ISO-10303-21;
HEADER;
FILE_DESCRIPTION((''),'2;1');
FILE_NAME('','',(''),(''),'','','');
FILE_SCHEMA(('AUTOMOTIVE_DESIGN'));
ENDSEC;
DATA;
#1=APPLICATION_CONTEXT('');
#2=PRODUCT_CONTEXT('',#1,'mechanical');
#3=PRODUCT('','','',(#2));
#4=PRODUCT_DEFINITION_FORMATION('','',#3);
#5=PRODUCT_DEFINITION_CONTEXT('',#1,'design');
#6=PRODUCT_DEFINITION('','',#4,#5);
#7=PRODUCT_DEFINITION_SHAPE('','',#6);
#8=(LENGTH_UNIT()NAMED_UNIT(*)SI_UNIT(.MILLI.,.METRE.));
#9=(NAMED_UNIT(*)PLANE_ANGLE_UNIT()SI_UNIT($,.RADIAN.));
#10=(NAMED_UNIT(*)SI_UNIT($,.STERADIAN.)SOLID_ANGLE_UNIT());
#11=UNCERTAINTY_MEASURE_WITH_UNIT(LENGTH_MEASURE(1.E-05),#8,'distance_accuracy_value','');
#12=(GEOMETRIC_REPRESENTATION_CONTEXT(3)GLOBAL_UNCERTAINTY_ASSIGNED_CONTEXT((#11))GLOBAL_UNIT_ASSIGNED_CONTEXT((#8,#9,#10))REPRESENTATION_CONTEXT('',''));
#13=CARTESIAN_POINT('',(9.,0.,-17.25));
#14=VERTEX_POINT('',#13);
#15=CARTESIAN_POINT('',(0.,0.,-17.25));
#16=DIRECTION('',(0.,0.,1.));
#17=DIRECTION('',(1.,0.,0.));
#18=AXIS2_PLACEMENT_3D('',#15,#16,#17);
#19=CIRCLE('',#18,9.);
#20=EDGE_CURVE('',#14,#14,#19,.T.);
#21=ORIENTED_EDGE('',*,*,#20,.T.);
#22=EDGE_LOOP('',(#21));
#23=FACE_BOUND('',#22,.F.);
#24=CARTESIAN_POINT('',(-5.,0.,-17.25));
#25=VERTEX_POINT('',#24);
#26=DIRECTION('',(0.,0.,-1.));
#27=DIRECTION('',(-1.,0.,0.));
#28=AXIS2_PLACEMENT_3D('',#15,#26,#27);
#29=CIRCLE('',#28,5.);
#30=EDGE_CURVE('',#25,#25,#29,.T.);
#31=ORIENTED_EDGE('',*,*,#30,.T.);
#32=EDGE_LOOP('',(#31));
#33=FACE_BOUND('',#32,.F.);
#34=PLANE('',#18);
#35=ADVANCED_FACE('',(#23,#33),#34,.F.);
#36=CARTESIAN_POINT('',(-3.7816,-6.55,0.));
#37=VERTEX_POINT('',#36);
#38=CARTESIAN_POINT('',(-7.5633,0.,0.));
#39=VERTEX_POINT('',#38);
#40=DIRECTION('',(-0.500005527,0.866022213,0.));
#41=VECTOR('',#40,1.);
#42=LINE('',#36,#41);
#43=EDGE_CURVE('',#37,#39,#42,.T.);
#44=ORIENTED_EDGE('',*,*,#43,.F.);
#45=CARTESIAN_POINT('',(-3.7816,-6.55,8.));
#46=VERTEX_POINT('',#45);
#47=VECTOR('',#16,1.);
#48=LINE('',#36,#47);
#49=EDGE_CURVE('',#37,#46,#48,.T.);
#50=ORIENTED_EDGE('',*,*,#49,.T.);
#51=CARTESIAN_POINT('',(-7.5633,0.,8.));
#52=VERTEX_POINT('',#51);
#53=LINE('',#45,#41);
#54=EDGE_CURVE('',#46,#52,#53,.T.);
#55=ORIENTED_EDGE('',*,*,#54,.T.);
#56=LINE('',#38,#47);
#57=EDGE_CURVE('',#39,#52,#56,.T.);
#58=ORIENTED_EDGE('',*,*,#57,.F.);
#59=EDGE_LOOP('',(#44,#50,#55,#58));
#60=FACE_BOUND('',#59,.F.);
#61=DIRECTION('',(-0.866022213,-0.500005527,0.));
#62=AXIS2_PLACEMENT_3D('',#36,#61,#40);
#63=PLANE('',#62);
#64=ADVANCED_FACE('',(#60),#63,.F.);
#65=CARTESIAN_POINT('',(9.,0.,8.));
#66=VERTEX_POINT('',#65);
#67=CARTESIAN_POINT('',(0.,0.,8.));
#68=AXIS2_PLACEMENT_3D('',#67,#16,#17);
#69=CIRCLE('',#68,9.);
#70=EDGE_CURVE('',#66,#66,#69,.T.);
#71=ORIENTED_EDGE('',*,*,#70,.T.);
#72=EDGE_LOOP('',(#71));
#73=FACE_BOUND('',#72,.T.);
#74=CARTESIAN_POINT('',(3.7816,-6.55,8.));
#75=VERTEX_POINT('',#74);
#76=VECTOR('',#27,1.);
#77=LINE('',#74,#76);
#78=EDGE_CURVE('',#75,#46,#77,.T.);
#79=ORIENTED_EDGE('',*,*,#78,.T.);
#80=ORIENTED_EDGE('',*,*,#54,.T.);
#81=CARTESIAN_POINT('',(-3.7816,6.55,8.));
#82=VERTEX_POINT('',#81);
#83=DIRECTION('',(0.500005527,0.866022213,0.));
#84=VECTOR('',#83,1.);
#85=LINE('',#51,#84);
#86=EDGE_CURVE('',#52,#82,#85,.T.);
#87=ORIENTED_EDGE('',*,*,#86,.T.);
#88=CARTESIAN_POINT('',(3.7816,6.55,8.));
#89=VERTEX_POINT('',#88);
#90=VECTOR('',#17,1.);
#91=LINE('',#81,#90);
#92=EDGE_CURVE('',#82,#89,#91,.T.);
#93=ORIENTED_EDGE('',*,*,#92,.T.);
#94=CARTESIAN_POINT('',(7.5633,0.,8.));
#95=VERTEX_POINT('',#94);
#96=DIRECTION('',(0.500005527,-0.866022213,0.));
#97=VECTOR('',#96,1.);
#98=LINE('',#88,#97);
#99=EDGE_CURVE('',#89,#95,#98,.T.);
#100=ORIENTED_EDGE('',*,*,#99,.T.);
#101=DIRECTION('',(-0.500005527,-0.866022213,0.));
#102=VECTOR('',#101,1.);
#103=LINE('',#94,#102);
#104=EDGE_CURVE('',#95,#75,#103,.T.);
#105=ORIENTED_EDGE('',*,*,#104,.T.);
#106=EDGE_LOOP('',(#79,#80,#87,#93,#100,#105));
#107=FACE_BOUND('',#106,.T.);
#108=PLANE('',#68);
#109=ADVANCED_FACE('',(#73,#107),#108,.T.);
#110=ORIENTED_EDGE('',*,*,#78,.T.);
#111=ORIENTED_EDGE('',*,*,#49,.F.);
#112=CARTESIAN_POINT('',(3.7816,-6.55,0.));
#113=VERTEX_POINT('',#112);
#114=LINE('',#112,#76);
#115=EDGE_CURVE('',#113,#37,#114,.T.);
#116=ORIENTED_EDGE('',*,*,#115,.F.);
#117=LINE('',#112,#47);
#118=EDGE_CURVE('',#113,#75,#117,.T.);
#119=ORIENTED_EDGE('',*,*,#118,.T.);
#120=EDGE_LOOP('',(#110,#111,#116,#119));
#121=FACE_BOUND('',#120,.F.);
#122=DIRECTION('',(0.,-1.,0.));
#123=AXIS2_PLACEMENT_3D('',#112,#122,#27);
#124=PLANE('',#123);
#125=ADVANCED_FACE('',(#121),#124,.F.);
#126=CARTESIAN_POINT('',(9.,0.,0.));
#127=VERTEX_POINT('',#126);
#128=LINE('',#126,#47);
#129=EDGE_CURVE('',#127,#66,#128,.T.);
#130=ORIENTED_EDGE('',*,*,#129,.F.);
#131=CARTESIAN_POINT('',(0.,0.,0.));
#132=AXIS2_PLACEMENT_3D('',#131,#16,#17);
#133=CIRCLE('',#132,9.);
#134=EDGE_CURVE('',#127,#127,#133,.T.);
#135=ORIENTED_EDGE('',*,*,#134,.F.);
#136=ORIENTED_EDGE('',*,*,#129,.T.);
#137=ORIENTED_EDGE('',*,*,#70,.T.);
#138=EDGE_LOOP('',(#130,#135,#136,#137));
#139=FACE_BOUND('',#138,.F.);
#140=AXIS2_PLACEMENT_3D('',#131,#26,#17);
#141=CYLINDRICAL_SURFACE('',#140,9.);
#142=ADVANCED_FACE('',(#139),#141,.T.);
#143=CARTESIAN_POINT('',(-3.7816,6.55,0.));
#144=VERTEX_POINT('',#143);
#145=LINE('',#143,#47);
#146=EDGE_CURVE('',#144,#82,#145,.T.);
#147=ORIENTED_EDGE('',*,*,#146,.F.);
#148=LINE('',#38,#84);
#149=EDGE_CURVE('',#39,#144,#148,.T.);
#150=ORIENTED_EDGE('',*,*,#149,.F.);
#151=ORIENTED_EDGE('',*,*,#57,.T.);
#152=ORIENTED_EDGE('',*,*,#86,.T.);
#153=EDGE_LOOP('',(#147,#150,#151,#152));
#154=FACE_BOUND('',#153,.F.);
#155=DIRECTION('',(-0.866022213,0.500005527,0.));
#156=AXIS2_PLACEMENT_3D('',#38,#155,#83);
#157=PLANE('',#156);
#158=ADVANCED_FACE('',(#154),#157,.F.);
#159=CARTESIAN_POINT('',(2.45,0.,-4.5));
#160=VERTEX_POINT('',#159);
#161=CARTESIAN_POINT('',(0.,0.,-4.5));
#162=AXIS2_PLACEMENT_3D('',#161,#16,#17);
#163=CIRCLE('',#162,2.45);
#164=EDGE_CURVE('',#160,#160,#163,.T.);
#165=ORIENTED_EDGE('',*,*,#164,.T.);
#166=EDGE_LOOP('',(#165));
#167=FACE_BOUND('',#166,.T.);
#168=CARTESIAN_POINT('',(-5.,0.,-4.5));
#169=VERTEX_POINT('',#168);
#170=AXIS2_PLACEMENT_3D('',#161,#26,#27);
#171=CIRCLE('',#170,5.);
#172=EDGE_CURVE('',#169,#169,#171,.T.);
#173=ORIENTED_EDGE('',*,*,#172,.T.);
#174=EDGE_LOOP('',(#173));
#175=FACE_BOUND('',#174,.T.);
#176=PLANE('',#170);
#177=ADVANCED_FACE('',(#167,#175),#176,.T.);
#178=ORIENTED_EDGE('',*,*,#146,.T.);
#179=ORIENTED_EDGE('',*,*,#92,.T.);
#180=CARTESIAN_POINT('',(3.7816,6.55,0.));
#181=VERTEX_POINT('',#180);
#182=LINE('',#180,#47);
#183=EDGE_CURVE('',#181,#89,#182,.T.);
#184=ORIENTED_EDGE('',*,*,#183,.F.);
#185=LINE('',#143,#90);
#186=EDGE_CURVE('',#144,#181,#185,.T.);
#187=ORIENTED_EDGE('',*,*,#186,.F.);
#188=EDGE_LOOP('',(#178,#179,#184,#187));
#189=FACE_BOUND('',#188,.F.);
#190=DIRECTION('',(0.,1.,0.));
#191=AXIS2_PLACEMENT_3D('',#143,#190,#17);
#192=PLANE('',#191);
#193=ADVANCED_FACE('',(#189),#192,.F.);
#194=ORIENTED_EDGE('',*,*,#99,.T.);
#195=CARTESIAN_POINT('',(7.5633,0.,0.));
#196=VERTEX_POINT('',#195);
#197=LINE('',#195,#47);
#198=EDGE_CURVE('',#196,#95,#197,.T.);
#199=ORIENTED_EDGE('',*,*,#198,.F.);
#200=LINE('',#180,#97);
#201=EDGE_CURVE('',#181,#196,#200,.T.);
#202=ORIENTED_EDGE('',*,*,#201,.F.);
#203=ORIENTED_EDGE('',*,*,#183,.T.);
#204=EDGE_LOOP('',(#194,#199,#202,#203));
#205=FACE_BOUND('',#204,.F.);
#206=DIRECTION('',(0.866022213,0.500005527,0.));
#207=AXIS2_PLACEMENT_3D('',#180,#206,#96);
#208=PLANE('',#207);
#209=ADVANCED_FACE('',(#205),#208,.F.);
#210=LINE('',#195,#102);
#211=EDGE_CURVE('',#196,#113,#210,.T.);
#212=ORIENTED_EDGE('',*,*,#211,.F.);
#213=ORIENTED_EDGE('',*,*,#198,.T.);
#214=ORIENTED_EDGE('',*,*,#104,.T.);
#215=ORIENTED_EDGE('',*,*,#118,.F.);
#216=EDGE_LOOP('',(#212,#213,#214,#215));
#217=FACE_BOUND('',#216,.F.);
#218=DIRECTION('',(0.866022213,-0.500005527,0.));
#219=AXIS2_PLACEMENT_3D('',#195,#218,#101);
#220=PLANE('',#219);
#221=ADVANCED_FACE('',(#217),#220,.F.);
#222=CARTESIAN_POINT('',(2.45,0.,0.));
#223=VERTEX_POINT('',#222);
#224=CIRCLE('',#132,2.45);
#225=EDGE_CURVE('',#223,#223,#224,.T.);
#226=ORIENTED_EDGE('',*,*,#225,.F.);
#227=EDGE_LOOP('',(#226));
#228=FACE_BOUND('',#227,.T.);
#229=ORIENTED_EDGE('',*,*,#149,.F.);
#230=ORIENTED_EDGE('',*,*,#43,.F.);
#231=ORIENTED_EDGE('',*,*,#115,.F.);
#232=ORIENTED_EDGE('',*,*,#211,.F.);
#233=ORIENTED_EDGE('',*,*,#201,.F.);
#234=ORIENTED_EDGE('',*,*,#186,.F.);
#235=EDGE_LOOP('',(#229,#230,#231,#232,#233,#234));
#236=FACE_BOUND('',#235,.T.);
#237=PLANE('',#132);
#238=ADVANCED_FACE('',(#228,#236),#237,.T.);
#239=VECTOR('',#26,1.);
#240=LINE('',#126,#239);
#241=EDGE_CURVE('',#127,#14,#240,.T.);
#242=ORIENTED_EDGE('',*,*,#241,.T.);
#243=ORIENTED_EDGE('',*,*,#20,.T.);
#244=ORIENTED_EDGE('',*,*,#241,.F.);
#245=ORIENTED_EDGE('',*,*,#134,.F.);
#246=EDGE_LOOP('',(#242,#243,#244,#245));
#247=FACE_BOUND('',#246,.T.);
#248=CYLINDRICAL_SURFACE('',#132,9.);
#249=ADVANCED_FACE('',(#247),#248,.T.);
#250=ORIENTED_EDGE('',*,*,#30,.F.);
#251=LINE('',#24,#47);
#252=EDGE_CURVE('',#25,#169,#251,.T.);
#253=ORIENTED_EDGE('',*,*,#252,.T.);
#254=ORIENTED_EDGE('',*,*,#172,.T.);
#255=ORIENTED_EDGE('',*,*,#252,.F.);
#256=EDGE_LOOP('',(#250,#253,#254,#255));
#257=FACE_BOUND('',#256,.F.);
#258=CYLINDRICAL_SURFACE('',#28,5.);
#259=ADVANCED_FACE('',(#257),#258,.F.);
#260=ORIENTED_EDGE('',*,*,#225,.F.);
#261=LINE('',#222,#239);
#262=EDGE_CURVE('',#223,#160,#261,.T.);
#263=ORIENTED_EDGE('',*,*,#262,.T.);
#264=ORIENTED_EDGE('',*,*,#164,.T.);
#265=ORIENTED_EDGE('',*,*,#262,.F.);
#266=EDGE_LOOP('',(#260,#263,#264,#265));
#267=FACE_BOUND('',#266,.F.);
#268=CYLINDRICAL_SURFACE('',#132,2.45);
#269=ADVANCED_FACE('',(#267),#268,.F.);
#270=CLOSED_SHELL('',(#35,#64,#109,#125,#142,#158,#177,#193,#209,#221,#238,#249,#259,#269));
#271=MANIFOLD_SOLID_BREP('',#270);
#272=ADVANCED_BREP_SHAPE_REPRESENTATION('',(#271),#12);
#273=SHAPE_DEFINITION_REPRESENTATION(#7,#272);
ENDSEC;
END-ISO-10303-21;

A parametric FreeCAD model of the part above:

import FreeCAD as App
import Part
import Sketcher
from FreeCAD import Vector
Q = App.Units.Quantity

doc = App.newDocument("Part")
body = doc.addObject("PartDesign::Body", "Body")

# Sketch on XY plane
sketch1 = body.newObject("Sketcher::SketchObject", "Sketch")
sketch1.AttachmentSupport = (doc.getObject("XY_Plane"), [""])
sketch1.MapMode = "FlatFace"
sketch1.addGeometry([
    Part.Circle(Vector(0, 0, 0), Vector(0, 0, 1), 9),  # 0
    Part.LineSegment(Vector(-4, -7, 0), Vector(-8, 0, 0)),  # 1
    Part.LineSegment(Vector(-8, 0, 0), Vector(-4, 7, 0)),  # 2
    Part.LineSegment(Vector(-4, 7, 0), Vector(4, 7, 0)),  # 3
    Part.LineSegment(Vector(4, 7, 0), Vector(8, 0, 0)),  # 4
    Part.LineSegment(Vector(8, 0, 0), Vector(4, -7, 0)),  # 5
    Part.LineSegment(Vector(4, -7, 0), Vector(-4, -7, 0)),  # 6
], False)
sketch1.addConstraint([
    Sketcher.Constraint("Coincident", 1, 2, 2, 1),
    Sketcher.Constraint("Coincident", 2, 2, 3, 1),
    Sketcher.Constraint("Coincident", 3, 2, 4, 1),
    Sketcher.Constraint("Coincident", 4, 2, 5, 1),
    Sketcher.Constraint("Coincident", 5, 2, 6, 1),
    Sketcher.Constraint("Coincident", 6, 2, 1, 1),
    Sketcher.Constraint("Horizontal", 3),
    Sketcher.Constraint("Horizontal", 6),
    Sketcher.Constraint("Coincident", 0, 3, -1, 1),
    Sketcher.Constraint("Symmetric", 1, 2, 4, 2, -1, 1),
    Sketcher.Constraint("Symmetric", 2, 2, 5, 2, -1, 1),
    Sketcher.Constraint("PointOnObject", 1, 2, -1),
    Sketcher.Constraint("Parallel", 1, 4),
    Sketcher.Constraint("Vertical", 3, 2, 5, 2),
    Sketcher.Constraint("Diameter", 0, 18.0),
    Sketcher.Constraint("DistanceY", 5, 2, 3, 2, 13.1),
    Sketcher.Constraint("Angle", 1, Q("120.0004 deg")),
    Sketcher.Constraint("DistanceX", 3, 1, 3, 2, 7.5632),
])
pad1 = body.newObject("PartDesign::Pad", "Pad")
pad1.Profile = sketch1
pad1.Length = 8

# Sketch on XY plane
sketch2 = body.newObject("Sketcher::SketchObject", "Sketch001")
sketch2.AttachmentSupport = (doc.getObject("XY_Plane"), [""])
sketch2.MapMode = "FlatFace"
sketch2.addGeometry([
    Part.Circle(Vector(0, 0, 0), Vector(0, 0, 1), 9),
    Part.Circle(Vector(0, 0, 0), Vector(0, 0, 1), 2.5),
], False)
sketch2.addConstraint([
    Sketcher.Constraint("Coincident", 0, 3, -1, 1),
    Sketcher.Constraint("Coincident", 1, 3, -1, 1),
    Sketcher.Constraint("Diameter", 0, 18.0),
    Sketcher.Constraint("Diameter", 1, 4.9),
])
pad2 = body.newObject("PartDesign::Pad", "Pad001")
pad2.Profile = sketch2
pad2.Length = 17.25
pad2.Reversed = True

# Sketch on XY plane
sketch3 = body.newObject("Sketcher::SketchObject", "Sketch002")
sketch3.AttachmentSupport = (doc.getObject("XY_Plane"), [""])
sketch3.MapMode = "FlatFace"
sketch3.AttachmentOffset = App.Placement(Vector(0, 0, -17.25), App.Rotation())
sketch3.addGeometry(Part.Circle(Vector(0, 0, 0), Vector(0, 0, 1), 5), False)
sketch3.addConstraint([
    Sketcher.Constraint("Coincident", 0, 3, -1, 1),
    Sketcher.Constraint("Diameter", 0, 10.0),
])
pocket1 = body.newObject("PartDesign::Pocket", "Pocket")
pocket1.Profile = sketch3
pocket1.Length = 12.75
pocket1.Reversed = True

doc.recompute()
